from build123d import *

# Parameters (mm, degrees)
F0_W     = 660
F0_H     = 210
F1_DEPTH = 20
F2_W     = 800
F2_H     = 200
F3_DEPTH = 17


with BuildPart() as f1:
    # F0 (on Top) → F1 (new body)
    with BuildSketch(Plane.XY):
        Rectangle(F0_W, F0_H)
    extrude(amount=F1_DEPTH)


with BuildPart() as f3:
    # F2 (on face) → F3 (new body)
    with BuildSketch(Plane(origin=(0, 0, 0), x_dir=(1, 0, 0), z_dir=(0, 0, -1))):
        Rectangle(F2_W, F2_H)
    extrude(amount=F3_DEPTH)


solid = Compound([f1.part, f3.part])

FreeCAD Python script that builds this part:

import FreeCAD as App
import Part
import Sketcher

V = App.Vector
Q = App.Units.Quantity

doc = App.newDocument("Part")
body = doc.addObject("PartDesign::Body", "Body")

sketch1 = body.newObject("Sketcher::SketchObject", "Sketch")
sketch1.AttachmentSupport = (doc.getObject("XY_Plane"), [""])
sketch1.MapMode = "FlatFace"
sketch1.addGeometry([
    Part.LineSegment(V(-330, 105, 0), V(-330, -105, 0)),
    Part.LineSegment(V(-330, -105, 0), V(330, -105, 0)),
    Part.LineSegment(V(330, -105, 0), V(330, 105, 0)),
    Part.LineSegment(V(330, 105, 0), V(-330, 105, 0)),
], False)
sketch1.addConstraint([
    Sketcher.Constraint("Coincident", 0, 2, 1, 1),
    Sketcher.Constraint("Coincident", 1, 2, 2, 1),
    Sketcher.Constraint("Coincident", 2, 2, 3, 1),
    Sketcher.Constraint("Coincident", 3, 2, 0, 1),
    Sketcher.Constraint("Vertical", 0),
    Sketcher.Constraint("Horizontal", 1),
    Sketcher.Constraint("Vertical", 2),
    Sketcher.Constraint("Horizontal", 3),
    Sketcher.Constraint("Symmetric", 0, 2, 2, 2, -1, 1),
    Sketcher.Constraint("DistanceX", 1, 1, 1, 2, Q("660 mm")),
    Sketcher.Constraint("DistanceY", 0, 2, 0, 1, Q("210 mm")),
])
pad1 = body.newObject("PartDesign::Pad", "Pad")
pad1.Profile = sketch1
pad1.Length = 20
body2 = doc.addObject("PartDesign::Body", "Body001")

sketch2 = body2.newObject("Sketcher::SketchObject", "Sketch001")
sketch2.AttachmentSupport = (doc.getObject("XY_Plane001"), [""])
sketch2.MapMode = "FlatFace"
sketch2.addGeometry([
    Part.LineSegment(V(-400, -100, 0), V(-400, 100, 0)),
    Part.LineSegment(V(-400, 100, 0), V(400, 100, 0)),
    Part.LineSegment(V(400, 100, 0), V(400, -100, 0)),
    Part.LineSegment(V(400, -100, 0), V(-400, -100, 0)),
], False)
sketch2.addConstraint([
    Sketcher.Constraint("Coincident", 0, 2, 1, 1),
    Sketcher.Constraint("Coincident", 1, 2, 2, 1),
    Sketcher.Constraint("Coincident", 2, 2, 3, 1),
    Sketcher.Constraint("Coincident", 3, 2, 0, 1),
    Sketcher.Constraint("Vertical", 0),
    Sketcher.Constraint("Horizontal", 1),
    Sketcher.Constraint("Vertical", 2),
    Sketcher.Constraint("Horizontal", 3),
    Sketcher.Constraint("Symmetric", 0, 2, 2, 2, -1, 1),
    Sketcher.Constraint("DistanceX", 1, 1, 1, 2, Q("800 mm")),
    Sketcher.Constraint("DistanceY", 0, 1, 0, 2, Q("200 mm")),
])
pad2 = body2.newObject("PartDesign::Pad", "Pad001")
pad2.Profile = sketch2
pad2.Length = 17
pad2.Reversed = True

doc.recompute()
